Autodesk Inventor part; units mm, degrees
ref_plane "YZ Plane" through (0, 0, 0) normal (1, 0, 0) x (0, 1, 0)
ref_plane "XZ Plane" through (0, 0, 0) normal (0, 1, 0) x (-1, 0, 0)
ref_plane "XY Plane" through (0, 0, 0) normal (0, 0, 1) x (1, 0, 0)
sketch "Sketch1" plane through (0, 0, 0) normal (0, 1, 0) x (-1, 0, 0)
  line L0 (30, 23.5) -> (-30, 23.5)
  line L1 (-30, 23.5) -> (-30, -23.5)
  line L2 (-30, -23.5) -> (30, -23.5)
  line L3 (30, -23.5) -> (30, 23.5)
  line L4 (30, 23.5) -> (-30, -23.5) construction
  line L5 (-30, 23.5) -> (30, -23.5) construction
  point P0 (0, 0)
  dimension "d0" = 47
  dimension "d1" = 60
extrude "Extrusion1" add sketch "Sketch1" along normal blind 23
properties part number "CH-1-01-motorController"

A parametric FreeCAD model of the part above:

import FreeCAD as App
import Part
import Sketcher
from FreeCAD import Vector


def add_polygon(sketch, points):
    """Adds a closed chain of lines whose ends are joined by coincident constraints."""
    first, n = sketch.GeometryCount, len(points)
    for a, b in zip(points, points[1:] + points[:1]):
        sketch.addGeometry(Part.LineSegment(App.Vector(*a, 0), App.Vector(*b, 0)), False)
    for i in range(n):
        sketch.addConstraint(Sketcher.Constraint("Coincident", first + i, 2, first + (i + 1) % n, 1))

doc = App.newDocument("Part")
params = doc.addObject("Spreadsheet::Sheet", "Params")
for row, (alias, value) in enumerate([
    ("sketch1_width", "60 mm"),
    ("sketch1_height", "47 mm"),
    ("pad1_length", "23 mm"),
], start=1):
    params.set(f"A{row}", alias)
    params.set(f"B{row}", "=" + value)
    params.setAlias(f"B{row}", alias)

body = doc.addObject("PartDesign::Body", "Body")

# Sketch on XZ plane
sketch1 = body.newObject("Sketcher::SketchObject", "Sketch")
sketch1.AttachmentSupport = (doc.getObject("XZ_Plane"), [""])
sketch1.MapMode = "FlatFace"
add_polygon(sketch1, [(-30, -24), (-30, 24), (30, 24), (30, -24)])  # lines 0-3
sketch1.addConstraint([
    Sketcher.Constraint("Vertical", 0),
    Sketcher.Constraint("Horizontal", 1),
    Sketcher.Constraint("Vertical", 2),
    Sketcher.Constraint("Horizontal", 3),
    Sketcher.Constraint("Symmetric", 0, 2, 2, 2, -1, 1),
    Sketcher.Constraint("DistanceX", 1, 1, 1, 2, 60.0),
    Sketcher.Constraint("DistanceY", 0, 1, 0, 2, 47.0),
])
sketch1.setExpression("Constraints[9]", "Params.sketch1_width")
sketch1.setExpression("Constraints[10]", "Params.sketch1_height")
pad1 = body.newObject("PartDesign::Pad", "Pad")
pad1.Profile = sketch1
pad1.setExpression("Length", "Params.pad1_length")
pad1.Reversed = True

doc.recompute()
